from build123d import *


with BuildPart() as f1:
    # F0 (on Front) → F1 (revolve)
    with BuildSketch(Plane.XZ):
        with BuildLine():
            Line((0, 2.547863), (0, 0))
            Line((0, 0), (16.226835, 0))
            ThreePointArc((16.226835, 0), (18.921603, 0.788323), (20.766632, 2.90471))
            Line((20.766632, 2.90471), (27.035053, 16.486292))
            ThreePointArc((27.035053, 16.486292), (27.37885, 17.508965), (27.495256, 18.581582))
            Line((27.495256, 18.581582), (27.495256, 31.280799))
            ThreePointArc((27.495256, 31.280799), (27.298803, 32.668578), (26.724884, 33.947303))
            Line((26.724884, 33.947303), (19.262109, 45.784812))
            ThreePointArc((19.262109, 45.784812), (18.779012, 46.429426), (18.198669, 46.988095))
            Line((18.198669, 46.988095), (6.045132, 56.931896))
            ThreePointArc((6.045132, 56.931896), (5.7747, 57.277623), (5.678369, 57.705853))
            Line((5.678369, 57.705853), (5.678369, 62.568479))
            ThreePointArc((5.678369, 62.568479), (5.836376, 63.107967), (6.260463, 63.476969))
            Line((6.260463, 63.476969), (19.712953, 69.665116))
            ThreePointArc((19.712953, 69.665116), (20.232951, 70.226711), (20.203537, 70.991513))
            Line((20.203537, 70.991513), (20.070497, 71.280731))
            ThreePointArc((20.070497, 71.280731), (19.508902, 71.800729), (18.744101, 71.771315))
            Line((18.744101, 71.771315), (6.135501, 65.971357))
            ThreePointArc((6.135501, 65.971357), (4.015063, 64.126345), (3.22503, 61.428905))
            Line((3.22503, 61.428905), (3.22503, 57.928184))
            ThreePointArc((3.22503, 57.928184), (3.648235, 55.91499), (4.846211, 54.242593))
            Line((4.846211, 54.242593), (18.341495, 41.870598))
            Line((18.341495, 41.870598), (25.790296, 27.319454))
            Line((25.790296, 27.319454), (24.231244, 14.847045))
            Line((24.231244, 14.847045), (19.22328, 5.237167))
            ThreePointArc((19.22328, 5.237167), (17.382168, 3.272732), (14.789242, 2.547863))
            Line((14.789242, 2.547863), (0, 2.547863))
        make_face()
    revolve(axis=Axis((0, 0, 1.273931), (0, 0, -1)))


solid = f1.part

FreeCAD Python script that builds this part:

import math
import FreeCAD as App
import Part
import Sketcher

V = App.Vector

doc = App.newDocument("Part")
body = doc.addObject("PartDesign::Body", "Body")

sketch1 = doc.addObject("Sketcher::SketchObject", "Sketch")
body.addObject(sketch1)
sketch1.AttachmentSupport = (doc.XZ_Plane, [""])
sketch1.MapMode = "FlatFace"
sketch1.addGeometry(Part.LineSegment(V(0, 2.547863, 0), V(0, 0, 0)), False)
sketch1.addGeometry(Part.LineSegment(V(0, 0, 0), V(16.226835, 0, 0)), False)
sketch1.addGeometry(Part.ArcOfCircle(Part.Circle(V(16.226835, 5, 0), V(0, 0, 1), 5), math.radians(-89.999994), math.radians(-24.775131)), False)
sketch1.addGeometry(Part.LineSegment(V(20.766632, 2.90471, 0), V(27.035053, 16.486292, 0)), False)
sketch1.addGeometry(Part.ArcOfCircle(Part.Circle(V(22.495252, 18.581584, 0), V(0, 0, 1), 5.000004), math.radians(-24.775129), math.radians(-0.000017)), False)
sketch1.addGeometry(Part.LineSegment(V(27.495256, 18.581582, 0), V(27.495256, 31.280799, 0)), False)
sketch1.addGeometry(Part.ArcOfCircle(Part.Circle(V(22.495246, 31.280796, 0), V(0, 0, 1), 5.00001), math.radians(0.000039), math.radians(32.228726)), False)
sketch1.addGeometry(Part.LineSegment(V(26.724884, 33.947303, 0), V(19.262109, 45.784812, 0)), False)
sketch1.addGeometry(Part.ArcOfCircle(Part.Circle(V(15.032479, 43.118307, 0), V(0, 0, 1), 5.000002), math.radians(32.228751), math.radians(50.710597)), False)
sketch1.addGeometry(Part.LineSegment(V(18.198669, 46.988095, 0), V(6.045132, 56.931896, 0)), False)
sketch1.addGeometry(Part.ArcOfCircle(Part.Circle(V(6.678372, 57.705855, 0), V(0, 0, 1), 1.000003), math.radians(-179.99987), math.radians(-129.289424)), False)
sketch1.addGeometry(Part.LineSegment(V(5.678369, 57.705853, 0), V(5.678369, 62.568479, 0)), False)
sketch1.addGeometry(Part.ArcOfCircle(Part.Circle(V(6.67837, 62.568478, 0), V(0, 0, 1), 1.000001), math.radians(114.702474), math.radians(179.999966)), False)
sketch1.addGeometry(Part.LineSegment(V(6.260463, 63.476969, 0), V(19.712953, 69.665116, 0)), False)
sketch1.addGeometry(Part.ArcOfCircle(Part.Circle(V(19.295047, 70.573606, 0), V(0, 0, 1), 1), math.radians(-65.29756), math.radians(24.702511)), False)
sketch1.addGeometry(Part.LineSegment(V(20.203537, 70.991513, 0), V(20.070497, 71.280731, 0)), False)
sketch1.addGeometry(Part.ArcOfCircle(Part.Circle(V(19.162007, 70.862826, 0), V(0, 0, 1), 0.999999), math.radians(24.702423), math.radians(114.702499)), False)
sketch1.addGeometry(Part.LineSegment(V(18.744101, 71.771315, 0), V(6.135501, 65.971357, 0)), False)
sketch1.addGeometry(Part.ArcOfCircle(Part.Circle(V(8.225028, 61.428906, 0), V(0, 0, 1), 4.999998), math.radians(114.702428), math.radians(180.000017)), False)
sketch1.addGeometry(Part.LineSegment(V(3.22503, 61.428905, 0), V(3.22503, 57.928184, 0)), False)
sketch1.addGeometry(Part.ArcOfCircle(Part.Circle(V(8.225027, 57.928183, 0), V(0, 0, 1), 4.999997), math.radians(179.999984), math.radians(227.486526)), False)
sketch1.addGeometry(Part.LineSegment(V(4.846211, 54.242593, 0), V(18.341495, 41.870598, 0)), False)
sketch1.addGeometry(Part.LineSegment(V(18.341495, 41.870598, 0), V(25.790296, 27.319454, 0)), False)
sketch1.addGeometry(Part.LineSegment(V(25.790296, 27.319454, 0), V(24.231244, 14.847045, 0)), False)
sketch1.addGeometry(Part.LineSegment(V(24.231244, 14.847045, 0), V(19.22328, 5.237167, 0)), False)
sketch1.addGeometry(Part.ArcOfCircle(Part.Circle(V(14.789245, 7.54786, 0), V(0, 0, 1), 4.999997), math.radians(-90.000032), math.radians(-27.525212)), False)
sketch1.addGeometry(Part.LineSegment(V(14.789242, 2.547863, 0), V(0, 2.547863, 0)), False)
sketch1.addConstraint(Sketcher.Constraint("Coincident", 0, 2, 1, 1))
sketch1.addConstraint(Sketcher.Constraint("Coincident", 1, 2, 2, 1))
sketch1.addConstraint(Sketcher.Constraint("Coincident", 2, 2, 3, 1))
sketch1.addConstraint(Sketcher.Constraint("Coincident", 3, 2, 4, 1))
sketch1.addConstraint(Sketcher.Constraint("Coincident", 4, 2, 5, 1))
sketch1.addConstraint(Sketcher.Constraint("Coincident", 5, 2, 6, 1))
sketch1.addConstraint(Sketcher.Constraint("Coincident", 6, 2, 7, 1))
sketch1.addConstraint(Sketcher.Constraint("Coincident", 7, 2, 8, 1))
sketch1.addConstraint(Sketcher.Constraint("Coincident", 8, 2, 9, 1))
sketch1.addConstraint(Sketcher.Constraint("Coincident", 9, 2, 10, 2))
sketch1.addConstraint(Sketcher.Constraint("Coincident", 10, 1, 11, 1))
sketch1.addConstraint(Sketcher.Constraint("Coincident", 11, 2, 12, 2))
sketch1.addConstraint(Sketcher.Constraint("Coincident", 12, 1, 13, 1))
sketch1.addConstraint(Sketcher.Constraint("Coincident", 13, 2, 14, 1))
sketch1.addConstraint(Sketcher.Constraint("Coincident", 14, 2, 15, 1))
sketch1.addConstraint(Sketcher.Constraint("Coincident", 15, 2, 16, 1))
sketch1.addConstraint(Sketcher.Constraint("Coincident", 16, 2, 17, 1))
sketch1.addConstraint(Sketcher.Constraint("Coincident", 17, 2, 18, 1))
sketch1.addConstraint(Sketcher.Constraint("Coincident", 18, 2, 19, 1))
sketch1.addConstraint(Sketcher.Constraint("Coincident", 19, 2, 20, 1))
sketch1.addConstraint(Sketcher.Constraint("Coincident", 20, 2, 21, 1))
sketch1.addConstraint(Sketcher.Constraint("Coincident", 21, 2, 22, 1))
sketch1.addConstraint(Sketcher.Constraint("Coincident", 22, 2, 23, 1))
sketch1.addConstraint(Sketcher.Constraint("Coincident", 23, 2, 24, 1))
sketch1.addConstraint(Sketcher.Constraint("Coincident", 24, 2, 25, 2))
sketch1.addConstraint(Sketcher.Constraint("Coincident", 25, 1, 26, 1))
sketch1.addConstraint(Sketcher.Constraint("Coincident", 26, 2, 0, 1))
sketch1.addConstraint(Sketcher.Constraint("Vertical", 0))
sketch1.addConstraint(Sketcher.Constraint("Horizontal", 1))
sketch1.addConstraint(Sketcher.Constraint("Vertical", 5))
sketch1.addConstraint(Sketcher.Constraint("Vertical", 11))
sketch1.addConstraint(Sketcher.Constraint("Vertical", 19))
sketch1.addConstraint(Sketcher.Constraint("Horizontal", 26))
sketch1.addConstraint(Sketcher.Constraint("Coincident", 0, 2, -1, 1))
sketch1.addConstraint(Sketcher.Constraint("Radius", 2, 5.0))
sketch1.addConstraint(Sketcher.Constraint("Radius", 8, 5.000002))
sketch1.addConstraint(Sketcher.Constraint("Radius", 12, 1.000001))
sketch1.addConstraint(Sketcher.Constraint("Radius", 14, 1.0))
sketch1.addConstraint(Sketcher.Constraint("Radius", 16, 0.999999))
sketch1.addConstraint(Sketcher.Constraint("Radius", 18, 4.999998))
sketch1.addConstraint(Sketcher.Constraint("Radius", 6, 5.00001))
sketch1.addConstraint(Sketcher.Constraint("Radius", 4, 5.000004))
sketch1.addConstraint(Sketcher.Constraint("Radius", 10, 1.000003))
sketch1.addConstraint(Sketcher.Constraint("Radius", 20, 4.999997))
sketch1.addConstraint(Sketcher.Constraint("Radius", 25, 4.999997))
sketch1.addConstraint(Sketcher.Constraint("DistanceX", 25, 3, 6, 3, 7.706002))
sketch1.addConstraint(Sketcher.Constraint("DistanceX", 25, 3, 23, 2, 9.441999))
sketch1.addConstraint(Sketcher.Constraint("DistanceY", 19, 2, 19, 1, 3.500721))
sketch1.addConstraint(Sketcher.Constraint("DistanceY", -1, 1, 5, 2, 31.280799))
sketch1.addConstraint(Sketcher.Constraint("DistanceX", -1, 1, 16, 2, 18.744101))
sketch1.addConstraint(Sketcher.Constraint("DistanceX", -1, 1, 17, 2, 6.135501))
sketch1.addConstraint(Sketcher.Constraint("DistanceY", 8, 3, 14, 3, 27.455299))
sketch1.addConstraint(Sketcher.Constraint("DistanceX", 14, 3, 6, 3, 3.200199))
sketch1.addConstraint(Sketcher.Constraint("DistanceY", 18, 3, 14, 3, 9.1447))
sketch1.addConstraint(Sketcher.Constraint("DistanceX", 4, 3, 3, 2, 4.539801))
sketch1.addConstraint(Sketcher.Constraint("DistanceY", 8, 2, 9, 2, 9.943801))
sketch1.addConstraint(Sketcher.Constraint("DistanceY", 14, 2, 16, 2, 0.779802))
sketch1.addConstraint(Sketcher.Constraint("DistanceY", 13, 2, 16, 2, 2.106199))
sketch1.addConstraint(Sketcher.Constraint("DistanceX", 19, 2, 9, 2, 2.820102))
sketch1.addConstraint(Sketcher.Constraint("Distance", 9, 15.703109))
sketch1.addConstraint(Sketcher.Constraint("Distance", 13, 14.80752))
sketch1.addConstraint(Sketcher.Constraint("Distance", 15, 0.31835))
sketch1.addConstraint(Sketcher.Constraint("Distance", 22, 16.346878))
sketch1.addConstraint(Sketcher.Constraint("DistanceX", 1, 1, 1, 2, 16.226835))
sketch1.addConstraint(Sketcher.Constraint("DistanceX", 26, 2, 26, 1, 14.789242))
sketch1.addConstraint(Sketcher.Constraint("DistanceY", 0, 2, 0, 1, 2.547863))
sketch1.addConstraint(Sketcher.Constraint("DistanceY", 5, 1, 5, 2, 12.699217))
sketch1.addConstraint(Sketcher.Constraint("DistanceY", 11, 1, 11, 2, 4.862626))
sketch1.addConstraint(Sketcher.Constraint("DistanceX", -1, 1, 8, 3, 15.032479))
sketch1.addConstraint(Sketcher.Constraint("DistanceX", -1, 1, 10, 3, 6.678372))
sketch1.addConstraint(Sketcher.Constraint("DistanceY", -1, 1, 12, 3, 62.568478))
sketch1.addConstraint(Sketcher.Constraint("DistanceX", -1, 1, 18, 3, 8.225028))
sketch1.addConstraint(Sketcher.Constraint("DistanceX", -1, 1, 2, 2, 20.766632))
sketch1.addConstraint(Sketcher.Constraint("DistanceY", -1, 1, 2, 2, 2.90471))
sketch1.addConstraint(Sketcher.Constraint("DistanceY", -1, 1, 3, 2, 16.486292))
sketch1.addConstraint(Sketcher.Constraint("DistanceX", -1, 1, 7, 2, 19.262109))
sketch1.addConstraint(Sketcher.Constraint("DistanceY", -1, 1, 11, 2, 62.568479))
sketch1.addConstraint(Sketcher.Constraint("DistanceY", -1, 1, 12, 1, 63.476969))
sketch1.addConstraint(Sketcher.Constraint("DistanceY", -1, 1, 15, 2, 71.280731))
sketch1.addConstraint(Sketcher.Constraint("DistanceX", -1, 1, 20, 2, 4.846211))
sketch1.addConstraint(Sketcher.Constraint("DistanceX", -1, 1, 24, 2, 19.22328))
sketch1.addConstraint(Sketcher.Constraint("DistanceX", 2, 3, 6, 3, 6.268412))
sketch1.addConstraint(Sketcher.Constraint("DistanceY", 6, 3, 8, 3, 11.837511))
sketch1.addConstraint(Sketcher.Constraint("DistanceY", 4, 3, 10, 3, 39.124272))
sketch1.addConstraint(Sketcher.Constraint("DistanceX", 6, 2, 5, 2, 0.770372))
sketch1.addConstraint(Sketcher.Constraint("DistanceY", 7, 2, 20, 3, 12.143371))
sketch1.addConstraint(Sketcher.Constraint("DistanceY", 10, 1, 19, 2, 0.222331))
sketch1.addConstraint(Sketcher.Constraint("DistanceY", 21, 2, 8, 3, 1.247709))
sketch1.addConstraint(Sketcher.Constraint("DistanceX", 21, 2, 6, 3, 4.153751))
sketch1.addConstraint(Sketcher.Constraint("DistanceX", 22, 2, 5, 2, 1.70496))
sketch1.addConstraint(Sketcher.Constraint("DistanceY", 23, 2, 4, 3, 3.734539))
revolution = doc.addObject("PartDesign::Revolution", "Revolution")
body.addObject(revolution)
revolution.Profile = sketch1
revolution.ReferenceAxis = (sketch1, ["V_Axis"])
revolution.Angle = 360

doc.recompute()
